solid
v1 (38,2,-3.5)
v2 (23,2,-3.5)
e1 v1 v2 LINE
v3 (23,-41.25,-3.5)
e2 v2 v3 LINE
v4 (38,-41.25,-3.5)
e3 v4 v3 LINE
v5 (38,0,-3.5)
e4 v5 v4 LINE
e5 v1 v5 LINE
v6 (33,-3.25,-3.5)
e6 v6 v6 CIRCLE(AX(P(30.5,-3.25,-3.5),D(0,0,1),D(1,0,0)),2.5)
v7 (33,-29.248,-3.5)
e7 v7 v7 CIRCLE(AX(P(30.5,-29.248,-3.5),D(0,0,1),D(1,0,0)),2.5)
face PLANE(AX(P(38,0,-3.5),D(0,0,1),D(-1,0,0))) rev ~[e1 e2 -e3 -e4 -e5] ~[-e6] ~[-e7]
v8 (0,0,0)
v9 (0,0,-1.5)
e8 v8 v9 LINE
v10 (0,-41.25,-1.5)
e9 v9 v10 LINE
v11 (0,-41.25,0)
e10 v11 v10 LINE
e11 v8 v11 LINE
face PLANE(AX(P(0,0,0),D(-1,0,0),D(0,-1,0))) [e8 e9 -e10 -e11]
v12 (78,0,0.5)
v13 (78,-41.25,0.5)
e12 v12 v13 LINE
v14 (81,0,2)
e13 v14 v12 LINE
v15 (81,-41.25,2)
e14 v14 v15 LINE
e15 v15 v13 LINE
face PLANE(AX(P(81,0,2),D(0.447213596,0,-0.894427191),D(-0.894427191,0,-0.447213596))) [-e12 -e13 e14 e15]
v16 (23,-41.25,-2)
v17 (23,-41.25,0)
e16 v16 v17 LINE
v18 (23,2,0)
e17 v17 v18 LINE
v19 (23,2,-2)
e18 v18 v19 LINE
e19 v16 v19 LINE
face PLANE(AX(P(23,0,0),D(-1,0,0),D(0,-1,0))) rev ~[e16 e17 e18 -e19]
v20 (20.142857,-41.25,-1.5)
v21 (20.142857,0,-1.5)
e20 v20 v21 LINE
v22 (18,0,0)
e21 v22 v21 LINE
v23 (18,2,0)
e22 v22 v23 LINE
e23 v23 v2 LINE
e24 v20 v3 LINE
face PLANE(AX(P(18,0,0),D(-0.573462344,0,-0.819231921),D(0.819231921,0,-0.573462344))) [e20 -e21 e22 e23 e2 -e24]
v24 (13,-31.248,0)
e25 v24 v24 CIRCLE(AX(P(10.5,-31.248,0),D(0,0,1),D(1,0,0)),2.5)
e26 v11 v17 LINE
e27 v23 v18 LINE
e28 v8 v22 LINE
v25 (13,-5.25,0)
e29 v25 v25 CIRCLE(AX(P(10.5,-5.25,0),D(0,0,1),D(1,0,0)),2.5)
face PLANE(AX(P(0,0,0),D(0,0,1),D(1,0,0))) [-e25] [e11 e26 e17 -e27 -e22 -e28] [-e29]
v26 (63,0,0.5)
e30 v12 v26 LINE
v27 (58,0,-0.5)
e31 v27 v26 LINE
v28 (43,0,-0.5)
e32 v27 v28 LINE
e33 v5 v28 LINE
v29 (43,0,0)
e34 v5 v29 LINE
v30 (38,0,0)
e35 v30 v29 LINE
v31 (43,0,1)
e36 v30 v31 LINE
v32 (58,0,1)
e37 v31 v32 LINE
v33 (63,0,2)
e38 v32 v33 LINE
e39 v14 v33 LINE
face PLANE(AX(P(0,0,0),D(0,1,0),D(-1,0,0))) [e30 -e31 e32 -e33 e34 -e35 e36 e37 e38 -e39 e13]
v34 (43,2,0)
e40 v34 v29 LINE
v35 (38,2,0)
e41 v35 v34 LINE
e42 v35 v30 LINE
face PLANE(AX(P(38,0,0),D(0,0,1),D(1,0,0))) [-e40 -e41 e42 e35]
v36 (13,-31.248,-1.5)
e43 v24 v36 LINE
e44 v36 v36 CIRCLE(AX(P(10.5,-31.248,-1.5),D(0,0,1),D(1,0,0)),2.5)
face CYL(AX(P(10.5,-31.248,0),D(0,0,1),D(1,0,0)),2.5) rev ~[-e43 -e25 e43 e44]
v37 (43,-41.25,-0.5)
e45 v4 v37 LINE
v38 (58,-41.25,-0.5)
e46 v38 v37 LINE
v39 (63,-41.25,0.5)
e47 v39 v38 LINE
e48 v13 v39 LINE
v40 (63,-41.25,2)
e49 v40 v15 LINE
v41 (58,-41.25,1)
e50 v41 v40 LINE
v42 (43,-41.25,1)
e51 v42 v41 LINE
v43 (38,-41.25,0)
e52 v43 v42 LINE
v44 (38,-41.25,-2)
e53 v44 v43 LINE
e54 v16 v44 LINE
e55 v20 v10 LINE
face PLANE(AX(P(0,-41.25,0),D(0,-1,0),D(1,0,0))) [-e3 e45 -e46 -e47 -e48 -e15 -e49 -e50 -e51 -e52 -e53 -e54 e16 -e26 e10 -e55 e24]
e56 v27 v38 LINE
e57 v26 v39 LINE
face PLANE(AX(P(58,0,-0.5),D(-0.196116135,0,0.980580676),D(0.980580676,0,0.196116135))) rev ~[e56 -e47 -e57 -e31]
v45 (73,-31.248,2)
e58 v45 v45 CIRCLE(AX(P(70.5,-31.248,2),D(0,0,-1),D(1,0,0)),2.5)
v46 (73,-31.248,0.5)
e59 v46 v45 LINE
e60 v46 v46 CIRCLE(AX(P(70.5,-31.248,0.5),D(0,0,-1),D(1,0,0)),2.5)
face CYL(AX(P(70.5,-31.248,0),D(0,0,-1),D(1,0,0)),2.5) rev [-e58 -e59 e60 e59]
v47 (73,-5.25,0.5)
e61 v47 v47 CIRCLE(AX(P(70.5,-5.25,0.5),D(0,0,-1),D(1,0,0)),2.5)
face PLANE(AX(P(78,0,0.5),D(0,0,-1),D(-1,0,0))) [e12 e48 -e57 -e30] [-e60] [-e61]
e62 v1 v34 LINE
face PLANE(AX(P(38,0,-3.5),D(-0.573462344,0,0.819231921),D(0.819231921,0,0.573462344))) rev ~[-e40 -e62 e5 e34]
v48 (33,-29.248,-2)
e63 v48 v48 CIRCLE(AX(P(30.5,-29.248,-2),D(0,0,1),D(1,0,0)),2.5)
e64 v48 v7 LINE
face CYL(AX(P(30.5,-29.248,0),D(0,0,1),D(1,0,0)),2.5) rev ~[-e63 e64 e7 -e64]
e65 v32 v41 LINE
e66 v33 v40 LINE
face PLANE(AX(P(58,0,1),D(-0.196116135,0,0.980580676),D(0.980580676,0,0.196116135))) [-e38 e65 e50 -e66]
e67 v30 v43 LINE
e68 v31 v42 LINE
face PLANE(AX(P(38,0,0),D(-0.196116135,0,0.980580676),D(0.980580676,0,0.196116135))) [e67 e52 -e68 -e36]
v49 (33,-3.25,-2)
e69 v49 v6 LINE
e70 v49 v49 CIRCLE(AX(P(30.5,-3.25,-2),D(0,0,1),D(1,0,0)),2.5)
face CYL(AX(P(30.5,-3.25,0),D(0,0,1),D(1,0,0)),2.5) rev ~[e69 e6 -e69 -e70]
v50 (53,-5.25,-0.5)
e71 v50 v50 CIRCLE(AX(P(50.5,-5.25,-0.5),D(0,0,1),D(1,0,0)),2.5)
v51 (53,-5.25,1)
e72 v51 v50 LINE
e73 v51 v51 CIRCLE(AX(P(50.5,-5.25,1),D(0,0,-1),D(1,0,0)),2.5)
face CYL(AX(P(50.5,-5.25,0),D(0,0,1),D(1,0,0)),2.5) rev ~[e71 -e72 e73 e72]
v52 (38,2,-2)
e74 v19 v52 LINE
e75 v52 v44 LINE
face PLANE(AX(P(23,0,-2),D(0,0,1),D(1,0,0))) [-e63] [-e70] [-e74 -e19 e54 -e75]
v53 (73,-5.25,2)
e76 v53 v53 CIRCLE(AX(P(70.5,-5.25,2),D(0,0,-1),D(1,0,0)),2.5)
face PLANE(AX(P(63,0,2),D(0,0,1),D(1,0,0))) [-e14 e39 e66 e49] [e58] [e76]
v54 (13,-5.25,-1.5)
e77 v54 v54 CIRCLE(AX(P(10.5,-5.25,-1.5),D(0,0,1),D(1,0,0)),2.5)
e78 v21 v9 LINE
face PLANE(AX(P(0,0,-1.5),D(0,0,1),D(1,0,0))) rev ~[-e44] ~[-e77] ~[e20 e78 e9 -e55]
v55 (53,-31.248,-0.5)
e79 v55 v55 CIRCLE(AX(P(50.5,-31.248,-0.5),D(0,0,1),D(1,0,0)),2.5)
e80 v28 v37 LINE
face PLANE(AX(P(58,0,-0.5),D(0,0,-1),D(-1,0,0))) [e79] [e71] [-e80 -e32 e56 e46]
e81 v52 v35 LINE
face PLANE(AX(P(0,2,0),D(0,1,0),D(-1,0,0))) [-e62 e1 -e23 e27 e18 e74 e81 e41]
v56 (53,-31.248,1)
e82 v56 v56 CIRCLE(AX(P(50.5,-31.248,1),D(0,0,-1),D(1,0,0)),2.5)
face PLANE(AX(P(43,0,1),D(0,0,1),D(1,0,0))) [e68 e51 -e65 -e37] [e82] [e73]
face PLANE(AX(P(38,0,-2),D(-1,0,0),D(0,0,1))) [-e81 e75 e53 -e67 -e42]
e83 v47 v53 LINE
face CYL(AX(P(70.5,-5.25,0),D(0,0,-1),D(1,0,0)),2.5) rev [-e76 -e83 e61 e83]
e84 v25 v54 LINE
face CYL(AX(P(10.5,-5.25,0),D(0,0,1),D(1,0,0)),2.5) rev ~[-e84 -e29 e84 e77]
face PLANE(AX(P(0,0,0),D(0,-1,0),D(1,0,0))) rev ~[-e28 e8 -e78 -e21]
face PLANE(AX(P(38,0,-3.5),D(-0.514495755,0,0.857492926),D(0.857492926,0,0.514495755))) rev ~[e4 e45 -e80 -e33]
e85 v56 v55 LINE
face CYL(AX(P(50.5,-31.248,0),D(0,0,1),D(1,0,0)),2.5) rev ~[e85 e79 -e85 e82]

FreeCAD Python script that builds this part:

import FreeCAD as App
import Part
import Sketcher
Q = App.Units.Quantity


def add_polygon(sketch, points):
    """Adds a closed chain of lines whose ends are joined by coincident constraints."""
    first, n = sketch.GeometryCount, len(points)
    for a, b in zip(points, points[1:] + points[:1]):
        sketch.addGeometry(Part.LineSegment(App.Vector(*a, 0), App.Vector(*b, 0)), False)
    for i in range(n):
        sketch.addConstraint(Sketcher.Constraint("Coincident", first + i, 2, first + (i + 1) % n, 1))

doc = App.newDocument("Part")
body = doc.addObject("PartDesign::Body", "Body")
body.AllowCompound = True

sketch1 = body.newObject("Sketcher::SketchObject", "Sketch")
sketch1.AttachmentSupport = (doc.getObject("XY_Plane"), [""])
sketch1.MapMode = "FlatFace"
add_polygon(sketch1, [(0, 0), (0, -41), (23, -41), (23, 0)])
sketch1.addConstraint(Sketcher.Constraint("Vertical", 0))
sketch1.addConstraint(Sketcher.Constraint("Horizontal", 1))
sketch1.addConstraint(Sketcher.Constraint("Vertical", 2))
sketch1.addConstraint(Sketcher.Constraint("Horizontal", 3))
sketch1.addConstraint(Sketcher.Constraint("Coincident", 3, 2, -1, 1))
sketch1.addConstraint(Sketcher.Constraint("DistanceY", 0, 2, 0, 1, Q("41.25 mm")))
sketch1.addConstraint(Sketcher.Constraint("DistanceX", 1, 1, 1, 2, Q("23 mm")))
pad1 = body.newObject("PartDesign::Pad", "Pad")
pad1.Profile = sketch1
pad1.Length = 1.5
pad1.Reversed = True

sketch2 = body.newObject("Sketcher::SketchObject", "Sketch001")
sketch2.AttachmentSupport = (doc.getObject("XZ_Plane"), [""])
sketch2.MapMode = "FlatFace"
add_polygon(sketch2, [(23, -3.5), (18, 0), (23, 0), (23, -2), (38, -2), (38, 0), (43, 0), (38, -3.5)])
sketch2.addConstraint(Sketcher.Constraint("Horizontal", 1))
sketch2.addConstraint(Sketcher.Constraint("Vertical", 2))
sketch2.addConstraint(Sketcher.Constraint("Horizontal", 3))
sketch2.addConstraint(Sketcher.Constraint("Vertical", 4))
sketch2.addConstraint(Sketcher.Constraint("Horizontal", 5))
sketch2.addConstraint(Sketcher.Constraint("Horizontal", 7))
sketch2.addConstraint(Sketcher.Constraint("PointOnObject", 0, 2, -1))
sketch2.addConstraint(Sketcher.Constraint("PointOnObject", 4, 2, -1))
sketch2.addConstraint(Sketcher.Constraint("Vertical", 4, 2, 6, 2))
sketch2.addConstraint(Sketcher.Constraint("Vertical", 2, 2, 7, 2))
sketch2.addConstraint(Sketcher.Constraint("Equal", 1, 5))
sketch2.addConstraint(Sketcher.Constraint("DistanceX", 3, 1, 3, 2, Q("15 mm")))
sketch2.addConstraint(Sketcher.Constraint("DistanceY", 2, 2, 2, 1, Q("2 mm")))
sketch2.addConstraint(Sketcher.Constraint("DistanceY", 6, 2, 3, 2, Q("1.5 mm")))
sketch2.addConstraint(Sketcher.Constraint("DistanceX", 1, 1, 1, 2, Q("5 mm")))
sketch2.addConstraint(Sketcher.Constraint("DistanceX", -1, 1, 0, 2, Q("18 mm")))
pad2 = body.newObject("PartDesign::Pad", "Pad001")
pad2.Profile = sketch2
pad2.Length = 41.25

sketch3 = body.newObject("Sketcher::SketchObject", "Sketch002")
sketch3.AttachmentSupport = (doc.getObject("XZ_Plane"), [""])
sketch3.MapMode = "FlatFace"
add_polygon(sketch3, [(23, -3.5), (18, 0), (23, 0), (23, -2), (38, -2), (38, 0), (43, 0), (38, -3.5)])
sketch3.addConstraint(Sketcher.Constraint("Horizontal", 1))
sketch3.addConstraint(Sketcher.Constraint("Vertical", 2))
sketch3.addConstraint(Sketcher.Constraint("Horizontal", 3))
sketch3.addConstraint(Sketcher.Constraint("Vertical", 4))
sketch3.addConstraint(Sketcher.Constraint("Horizontal", 5))
sketch3.addConstraint(Sketcher.Constraint("Horizontal", 7))
sketch3.addConstraint(Sketcher.Constraint("PointOnObject", 0, 2, -1))
sketch3.addConstraint(Sketcher.Constraint("PointOnObject", 4, 2, -1))
sketch3.addConstraint(Sketcher.Constraint("Vertical", 4, 2, 6, 2))
sketch3.addConstraint(Sketcher.Constraint("Vertical", 2, 2, 7, 2))
sketch3.addConstraint(Sketcher.Constraint("Equal", 1, 5))
sketch3.addConstraint(Sketcher.Constraint("DistanceX", 3, 1, 3, 2, Q("15 mm")))
sketch3.addConstraint(Sketcher.Constraint("DistanceY", 2, 2, 2, 1, Q("2 mm")))
sketch3.addConstraint(Sketcher.Constraint("DistanceY", 6, 2, 3, 2, Q("1.5 mm")))
sketch3.addConstraint(Sketcher.Constraint("DistanceX", 1, 1, 1, 2, Q("5 mm")))
sketch3.addConstraint(Sketcher.Constraint("DistanceX", -1, 1, 0, 2, Q("18 mm")))
pad3 = body.newObject("PartDesign::Pad", "Pad002")
pad3.Profile = sketch3
pad3.Length = 2
pad3.Reversed = True

sketch4 = body.newObject("Sketcher::SketchObject", "Sketch003")
sketch4.AttachmentSupport = (doc.getObject("XZ_Plane"), [""])
sketch4.MapMode = "FlatFace"
add_polygon(sketch4, [(43, 0), (38, 0), (43, 1), (58, 1), (58, -0.5), (43, -0.5), (38, -3.5)])
add_polygon(sketch4, [(63, 0.5), (63, 2), (81, 2), (78, 0.5)])
sketch4.addConstraint(Sketcher.Constraint("Horizontal", 0))
sketch4.addConstraint(Sketcher.Constraint("Horizontal", 2))
sketch4.addConstraint(Sketcher.Constraint("Vertical", 3))
sketch4.addConstraint(Sketcher.Constraint("Horizontal", 4))
sketch4.addConstraint(Sketcher.Constraint("Vertical", 7))
sketch4.addConstraint(Sketcher.Constraint("Horizontal", 8))
sketch4.addConstraint(Sketcher.Constraint("Horizontal", 10))
sketch4.addConstraint(Sketcher.Constraint("PointOnObject", 0, 2, -1))
sketch4.addConstraint(Sketcher.Constraint("Vertical", 1, 2, 4, 2))
sketch4.addConstraint(Sketcher.Constraint("Vertical", 0, 2, 5, 2))
sketch4.addConstraint(Sketcher.Constraint("Vertical", 4, 2, 6, 2))
sketch4.addConstraint(Sketcher.Constraint("Equal", 4, 10))
sketch4.addConstraint(Sketcher.Constraint("Equal", 3, 7))
sketch4.addConstraint(Sketcher.Constraint("DistanceX", 2, 1, 2, 2, Q("15 mm")))
sketch4.addConstraint(Sketcher.Constraint("DistanceY", 3, 2, 3, 1, Q("1.5 mm")))
sketch4.addConstraint(Sketcher.Constraint("DistanceY", -1, 1, 1, 2, Q("1 mm")))
sketch4.addConstraint(Sketcher.Constraint("DistanceY", -1, 1, 7, 2, Q("2 mm")))
sketch4.addConstraint(Sketcher.Constraint("DistanceX", 0, 2, 0, 1, Q("5 mm")))
sketch4.addConstraint(Sketcher.Constraint("DistanceX", 8, 1, 8, 2, Q("18 mm")))
sketch4.addConstraint(Sketcher.Constraint("DistanceX", -1, 1, 0, 2, Q("38 mm")))
sketch4.addConstraint(Sketcher.Constraint("DistanceX", -1, 1, 7, 2, Q("63 mm")))
sketch4.addConstraint(Sketcher.Constraint("DistanceY", 5, 2, 4, 2, Q("3 mm")))
pad4 = body.newObject("PartDesign::Pad", "Pad003")
pad4.Profile = sketch4
pad4.Length = 41.25

sketch5 = body.newObject("Sketcher::SketchObject", "Sketch004")
sketch5.AttachmentSupport = (doc.getObject("XZ_Plane"), [""])
sketch5.MapMode = "FlatFace"
add_polygon(sketch5, [(58, -0.5), (58, 1), (63, 2), (63, 0.5)])
sketch5.addConstraint(Sketcher.Constraint("Vertical", 0))
sketch5.addConstraint(Sketcher.Constraint("Vertical", 2))
sketch5.addConstraint(Sketcher.Constraint("Parallel", 1, 3))
sketch5.addConstraint(Sketcher.Constraint("DistanceY", 0, 1, 0, 2, Q("1.5 mm")))
sketch5.addConstraint(Sketcher.Constraint("DistanceY", -1, 1, 0, 2, Q("1 mm")))
sketch5.addConstraint(Sketcher.Constraint("DistanceY", -1, 1, 1, 2, Q("2 mm")))
sketch5.addConstraint(Sketcher.Constraint("DistanceX", -1, 1, 0, 2, Q("58 mm")))
sketch5.addConstraint(Sketcher.Constraint("DistanceX", -1, 1, 1, 2, Q("63 mm")))
pad5 = body.newObject("PartDesign::Pad", "Pad004")
pad5.Profile = sketch5
pad5.Length = 41.25

sketch6 = body.newObject("Sketcher::SketchObject", "Sketch005")
sketch6.AttachmentSupport = (doc.getObject("XY_Plane"), [""])
sketch6.MapMode = "FlatFace"
sketch6.addGeometry(Part.Circle(App.Vector(10.5, -5.2, 0), App.Vector(0, 0, 1), 2.5), False)
sketch6.addGeometry(Part.Circle(App.Vector(10.5, -31.2, 0), App.Vector(0, 0, 1), 2.5), False)
sketch6.addGeometry(Part.Circle(App.Vector(30.5, -3.2, 0), App.Vector(0, 0, 1), 2.5), False)
sketch6.addGeometry(Part.Circle(App.Vector(30.5, -29.2, 0), App.Vector(0, 0, 1), 2.5), False)
sketch6.addGeometry(Part.Circle(App.Vector(50.5, -5.2, 0), App.Vector(0, 0, 1), 2.5), False)
sketch6.addGeometry(Part.Circle(App.Vector(50.5, -31.2, 0), App.Vector(0, 0, 1), 2.5), False)
sketch6.addGeometry(Part.Circle(App.Vector(70.5, -5.2, 0), App.Vector(0, 0, 1), 2.5), False)
sketch6.addGeometry(Part.Circle(App.Vector(70.5, -31.2, 0), App.Vector(0, 0, 1), 2.5), False)
sketch6.addConstraint(Sketcher.Constraint("Equal", 0, 1))
sketch6.addConstraint(Sketcher.Constraint("Equal", 1, 2))
sketch6.addConstraint(Sketcher.Constraint("Equal", 2, 3))
sketch6.addConstraint(Sketcher.Constraint("Equal", 3, 4))
sketch6.addConstraint(Sketcher.Constraint("Equal", 4, 5))
sketch6.addConstraint(Sketcher.Constraint("Equal", 5, 6))
sketch6.addConstraint(Sketcher.Constraint("Equal", 6, 7))
sketch6.addConstraint(Sketcher.Constraint("Horizontal", 0, 3, 4, 3))
sketch6.addConstraint(Sketcher.Constraint("Horizontal", 1, 3, 5, 3))
sketch6.addConstraint(Sketcher.Constraint("Horizontal", 4, 3, 6, 3))
sketch6.addConstraint(Sketcher.Constraint("Horizontal", 5, 3, 7, 3))
sketch6.addConstraint(Sketcher.Constraint("Vertical", 0, 3, 1, 3))
sketch6.addConstraint(Sketcher.Constraint("Vertical", 2, 3, 3, 3))
sketch6.addConstraint(Sketcher.Constraint("Vertical", 4, 3, 5, 3))
sketch6.addConstraint(Sketcher.Constraint("Vertical", 6, 3, 7, 3))
sketch6.addConstraint(Sketcher.Constraint("Diameter", 0, Q("5 mm")))
sketch6.addConstraint(Sketcher.Constraint("DistanceY", 0, 3, 2, 3, Q("2 mm")))
sketch6.addConstraint(Sketcher.Constraint("DistanceY", 1, 3, 3, 3, Q("2 mm")))
sketch6.addConstraint(Sketcher.Constraint("DistanceX", 0, 3, 2, 3, Q("20 mm")))
sketch6.addConstraint(Sketcher.Constraint("DistanceX", 2, 3, 4, 3, Q("20 mm")))
sketch6.addConstraint(Sketcher.Constraint("DistanceX", 4, 3, 6, 3, Q("20 mm")))
sketch6.addConstraint(Sketcher.Constraint("DistanceX", -1, 1, 0, 3, Q("10.5 mm")))
sketch6.addConstraint(Sketcher.Constraint("DistanceY", 0, 3, -1, 1, Q("5.25 mm")))
sketch6.addConstraint(Sketcher.Constraint("DistanceY", 1, 3, -1, 1, Q("31.248 mm")))
pocket1 = body.newObject("PartDesign::Pocket", "Pocket")
pocket1.Profile = sketch6
pocket1.Type = "ThroughAll"
pocket1.Midplane = True

doc.recompute()
